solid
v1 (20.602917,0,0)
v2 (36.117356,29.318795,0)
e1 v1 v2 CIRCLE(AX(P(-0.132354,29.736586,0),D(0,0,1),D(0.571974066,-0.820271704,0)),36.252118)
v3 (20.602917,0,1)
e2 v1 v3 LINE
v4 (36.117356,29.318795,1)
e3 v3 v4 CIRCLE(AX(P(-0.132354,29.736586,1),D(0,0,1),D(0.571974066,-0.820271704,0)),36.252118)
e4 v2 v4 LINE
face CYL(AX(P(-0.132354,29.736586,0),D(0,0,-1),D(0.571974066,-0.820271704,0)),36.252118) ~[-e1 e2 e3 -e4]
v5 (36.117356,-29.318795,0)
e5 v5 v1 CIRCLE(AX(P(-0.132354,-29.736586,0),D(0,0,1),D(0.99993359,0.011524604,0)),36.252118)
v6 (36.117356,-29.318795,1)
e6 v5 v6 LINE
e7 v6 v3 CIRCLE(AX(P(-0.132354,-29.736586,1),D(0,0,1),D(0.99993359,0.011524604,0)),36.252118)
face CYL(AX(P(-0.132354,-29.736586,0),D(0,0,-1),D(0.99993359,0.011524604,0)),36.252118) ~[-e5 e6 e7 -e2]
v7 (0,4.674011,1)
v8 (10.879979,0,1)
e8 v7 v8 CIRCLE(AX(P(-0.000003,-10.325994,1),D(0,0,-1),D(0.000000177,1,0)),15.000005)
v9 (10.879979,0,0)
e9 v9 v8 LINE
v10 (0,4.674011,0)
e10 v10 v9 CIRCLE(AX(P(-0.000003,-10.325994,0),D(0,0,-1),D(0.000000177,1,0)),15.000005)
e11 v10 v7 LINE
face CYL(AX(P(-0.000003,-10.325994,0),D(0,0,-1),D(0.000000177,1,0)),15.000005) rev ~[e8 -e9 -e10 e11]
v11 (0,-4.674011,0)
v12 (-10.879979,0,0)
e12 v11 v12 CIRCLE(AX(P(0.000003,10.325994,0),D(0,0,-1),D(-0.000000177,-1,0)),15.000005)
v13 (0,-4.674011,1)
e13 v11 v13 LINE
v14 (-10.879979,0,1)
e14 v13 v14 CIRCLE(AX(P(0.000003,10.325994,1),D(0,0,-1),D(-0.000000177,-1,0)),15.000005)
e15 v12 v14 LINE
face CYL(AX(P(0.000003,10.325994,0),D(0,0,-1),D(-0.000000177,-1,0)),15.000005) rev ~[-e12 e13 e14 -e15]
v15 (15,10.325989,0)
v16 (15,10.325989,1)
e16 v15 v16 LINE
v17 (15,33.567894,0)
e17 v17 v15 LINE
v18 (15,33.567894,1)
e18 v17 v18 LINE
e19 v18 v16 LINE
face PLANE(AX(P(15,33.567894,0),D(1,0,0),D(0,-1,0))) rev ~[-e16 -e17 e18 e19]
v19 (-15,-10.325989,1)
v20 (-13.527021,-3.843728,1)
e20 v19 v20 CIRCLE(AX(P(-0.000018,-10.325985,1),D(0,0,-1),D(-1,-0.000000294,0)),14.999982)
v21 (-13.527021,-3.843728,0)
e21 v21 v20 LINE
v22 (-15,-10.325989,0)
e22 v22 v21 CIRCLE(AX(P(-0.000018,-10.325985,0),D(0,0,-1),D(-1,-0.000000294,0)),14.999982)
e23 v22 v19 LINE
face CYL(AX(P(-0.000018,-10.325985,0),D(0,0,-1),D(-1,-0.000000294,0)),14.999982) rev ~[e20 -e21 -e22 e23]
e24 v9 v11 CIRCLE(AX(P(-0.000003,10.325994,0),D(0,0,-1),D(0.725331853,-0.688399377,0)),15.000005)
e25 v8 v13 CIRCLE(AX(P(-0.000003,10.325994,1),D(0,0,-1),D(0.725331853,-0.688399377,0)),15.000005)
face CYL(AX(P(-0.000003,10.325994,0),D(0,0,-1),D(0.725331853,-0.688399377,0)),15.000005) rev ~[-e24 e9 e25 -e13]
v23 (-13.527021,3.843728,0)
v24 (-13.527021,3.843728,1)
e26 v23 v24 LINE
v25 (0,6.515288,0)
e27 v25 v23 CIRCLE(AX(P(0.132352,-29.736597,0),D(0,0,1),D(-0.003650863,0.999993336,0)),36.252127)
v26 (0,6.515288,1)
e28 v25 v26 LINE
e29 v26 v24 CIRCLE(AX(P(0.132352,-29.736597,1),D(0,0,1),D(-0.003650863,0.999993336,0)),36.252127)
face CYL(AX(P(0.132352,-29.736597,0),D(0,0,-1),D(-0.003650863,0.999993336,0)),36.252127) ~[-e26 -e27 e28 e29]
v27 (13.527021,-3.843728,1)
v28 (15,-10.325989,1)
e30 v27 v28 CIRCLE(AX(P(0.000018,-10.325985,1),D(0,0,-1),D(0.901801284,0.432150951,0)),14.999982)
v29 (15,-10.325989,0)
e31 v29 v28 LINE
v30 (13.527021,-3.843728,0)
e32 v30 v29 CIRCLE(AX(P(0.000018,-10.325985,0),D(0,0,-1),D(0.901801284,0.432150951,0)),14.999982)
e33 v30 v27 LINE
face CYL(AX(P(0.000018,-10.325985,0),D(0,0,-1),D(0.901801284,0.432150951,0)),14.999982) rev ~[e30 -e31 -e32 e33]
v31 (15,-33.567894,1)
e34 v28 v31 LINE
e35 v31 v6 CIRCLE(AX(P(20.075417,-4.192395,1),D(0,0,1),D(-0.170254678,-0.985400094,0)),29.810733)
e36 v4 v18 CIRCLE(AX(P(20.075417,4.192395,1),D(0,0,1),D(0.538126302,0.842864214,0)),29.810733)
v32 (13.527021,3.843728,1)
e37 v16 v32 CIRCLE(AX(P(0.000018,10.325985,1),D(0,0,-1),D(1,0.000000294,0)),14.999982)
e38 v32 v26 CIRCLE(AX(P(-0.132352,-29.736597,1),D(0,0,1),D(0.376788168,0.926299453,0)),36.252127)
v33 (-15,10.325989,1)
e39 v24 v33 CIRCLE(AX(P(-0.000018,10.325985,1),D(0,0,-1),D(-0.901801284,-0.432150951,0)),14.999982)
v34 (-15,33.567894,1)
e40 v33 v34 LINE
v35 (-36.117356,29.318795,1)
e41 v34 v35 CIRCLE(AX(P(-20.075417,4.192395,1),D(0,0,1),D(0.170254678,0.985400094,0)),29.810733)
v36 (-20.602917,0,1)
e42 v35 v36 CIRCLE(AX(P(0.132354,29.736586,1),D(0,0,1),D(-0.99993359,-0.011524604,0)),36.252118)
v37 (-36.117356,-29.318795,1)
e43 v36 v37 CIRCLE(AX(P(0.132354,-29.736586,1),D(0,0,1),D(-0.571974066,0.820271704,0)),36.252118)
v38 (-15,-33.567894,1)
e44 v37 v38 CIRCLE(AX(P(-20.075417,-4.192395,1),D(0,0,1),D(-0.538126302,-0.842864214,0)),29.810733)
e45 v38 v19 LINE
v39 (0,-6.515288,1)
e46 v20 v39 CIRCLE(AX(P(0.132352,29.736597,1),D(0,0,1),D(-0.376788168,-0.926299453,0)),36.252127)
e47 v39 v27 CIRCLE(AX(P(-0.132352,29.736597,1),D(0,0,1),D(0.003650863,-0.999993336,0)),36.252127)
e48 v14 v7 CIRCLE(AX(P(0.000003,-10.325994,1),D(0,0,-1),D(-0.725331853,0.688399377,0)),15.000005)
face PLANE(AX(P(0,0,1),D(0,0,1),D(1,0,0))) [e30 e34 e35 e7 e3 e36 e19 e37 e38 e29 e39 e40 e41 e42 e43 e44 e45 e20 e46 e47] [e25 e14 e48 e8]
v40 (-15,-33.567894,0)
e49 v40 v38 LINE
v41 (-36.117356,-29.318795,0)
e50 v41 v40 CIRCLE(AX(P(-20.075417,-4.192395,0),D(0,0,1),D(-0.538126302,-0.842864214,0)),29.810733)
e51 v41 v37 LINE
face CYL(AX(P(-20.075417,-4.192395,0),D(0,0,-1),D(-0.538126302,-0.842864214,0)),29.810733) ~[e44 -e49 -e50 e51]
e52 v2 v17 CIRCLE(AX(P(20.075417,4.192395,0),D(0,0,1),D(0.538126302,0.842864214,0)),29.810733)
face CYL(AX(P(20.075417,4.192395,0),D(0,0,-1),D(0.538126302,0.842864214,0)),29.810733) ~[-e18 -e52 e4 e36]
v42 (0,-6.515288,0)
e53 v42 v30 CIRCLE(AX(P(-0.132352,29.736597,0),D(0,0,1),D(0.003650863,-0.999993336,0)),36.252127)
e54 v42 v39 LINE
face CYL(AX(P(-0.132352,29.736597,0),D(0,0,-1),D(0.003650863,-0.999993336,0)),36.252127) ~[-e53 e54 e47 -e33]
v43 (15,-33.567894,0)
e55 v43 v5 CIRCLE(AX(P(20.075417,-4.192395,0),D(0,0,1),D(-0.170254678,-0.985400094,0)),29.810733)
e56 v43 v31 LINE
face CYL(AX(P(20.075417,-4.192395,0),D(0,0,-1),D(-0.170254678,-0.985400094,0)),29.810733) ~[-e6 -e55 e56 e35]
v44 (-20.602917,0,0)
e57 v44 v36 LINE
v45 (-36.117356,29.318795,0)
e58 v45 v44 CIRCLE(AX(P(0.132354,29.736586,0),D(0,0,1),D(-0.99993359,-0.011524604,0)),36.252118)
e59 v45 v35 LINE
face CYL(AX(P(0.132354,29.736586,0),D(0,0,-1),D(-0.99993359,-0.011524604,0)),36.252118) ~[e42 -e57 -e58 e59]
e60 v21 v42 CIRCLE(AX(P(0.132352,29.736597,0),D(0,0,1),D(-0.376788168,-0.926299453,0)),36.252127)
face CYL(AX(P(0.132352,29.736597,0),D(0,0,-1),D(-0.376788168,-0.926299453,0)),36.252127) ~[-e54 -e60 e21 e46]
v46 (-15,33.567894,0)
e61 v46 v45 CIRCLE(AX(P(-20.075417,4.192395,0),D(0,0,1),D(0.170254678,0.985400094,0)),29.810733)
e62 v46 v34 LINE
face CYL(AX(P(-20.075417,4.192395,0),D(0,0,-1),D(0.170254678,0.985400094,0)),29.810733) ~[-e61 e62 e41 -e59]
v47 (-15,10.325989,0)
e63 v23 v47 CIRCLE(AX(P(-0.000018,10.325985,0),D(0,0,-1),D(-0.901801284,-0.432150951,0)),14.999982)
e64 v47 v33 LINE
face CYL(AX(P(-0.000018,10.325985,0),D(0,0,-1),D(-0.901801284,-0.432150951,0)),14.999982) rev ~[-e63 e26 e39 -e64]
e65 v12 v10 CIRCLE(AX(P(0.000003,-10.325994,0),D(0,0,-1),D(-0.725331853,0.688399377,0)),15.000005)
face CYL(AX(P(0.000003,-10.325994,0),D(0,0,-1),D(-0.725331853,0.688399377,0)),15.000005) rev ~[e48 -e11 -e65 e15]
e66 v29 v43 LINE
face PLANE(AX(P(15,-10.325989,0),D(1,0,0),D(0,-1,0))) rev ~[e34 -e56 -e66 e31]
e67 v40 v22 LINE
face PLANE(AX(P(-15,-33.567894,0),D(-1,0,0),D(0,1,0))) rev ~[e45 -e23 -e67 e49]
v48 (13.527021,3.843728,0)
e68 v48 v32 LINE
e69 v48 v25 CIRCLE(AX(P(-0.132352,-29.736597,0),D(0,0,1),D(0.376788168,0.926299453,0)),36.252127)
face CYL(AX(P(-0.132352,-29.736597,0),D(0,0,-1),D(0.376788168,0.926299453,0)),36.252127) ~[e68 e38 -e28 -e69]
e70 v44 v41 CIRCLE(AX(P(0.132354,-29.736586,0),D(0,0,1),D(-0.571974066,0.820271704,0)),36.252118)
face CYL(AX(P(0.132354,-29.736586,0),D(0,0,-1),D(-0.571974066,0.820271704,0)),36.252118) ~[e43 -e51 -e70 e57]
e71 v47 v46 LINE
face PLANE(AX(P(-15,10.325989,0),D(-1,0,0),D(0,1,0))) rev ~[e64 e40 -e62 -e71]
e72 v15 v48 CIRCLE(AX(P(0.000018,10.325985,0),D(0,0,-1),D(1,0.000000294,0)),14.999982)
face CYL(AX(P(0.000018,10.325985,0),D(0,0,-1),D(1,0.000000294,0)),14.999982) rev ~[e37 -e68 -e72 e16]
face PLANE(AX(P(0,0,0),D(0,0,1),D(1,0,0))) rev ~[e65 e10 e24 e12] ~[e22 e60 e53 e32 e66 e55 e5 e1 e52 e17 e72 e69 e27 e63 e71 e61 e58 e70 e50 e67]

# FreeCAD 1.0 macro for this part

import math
import FreeCAD as App
import Part
import Sketcher

doc = App.newDocument("Part")
body = doc.addObject("PartDesign::Body", "Body")

# Sketch on XY plane
sketch1 = body.newObject("Sketcher::SketchObject", "Sketch")
sketch1.AttachmentSupport = (doc.getObject("XY_Plane"), [""])
sketch1.MapMode = "FlatFace"
sketch1.addGeometry([
    Part.LineSegment(App.Vector(-15, 10.325989, 0), App.Vector(-15, 33.567894, 0)),  # 0
    Part.ArcOfCircle(Part.Circle(App.Vector(-20.075417, 4.192395, 0), App.Vector(0, 0, 1), 29.810733), math.radians(80.197373), math.radians(122.556179)),  # 1
    Part.ArcOfCircle(Part.Circle(App.Vector(0.132354, 29.736586, 0), App.Vector(0, 0, 1), 36.252118), math.radians(-179.339674), math.radians(-124.887998)),  # 2
    Part.ArcOfCircle(Part.Circle(App.Vector(0.132354, -29.736586, 0), App.Vector(0, 0, 1), 36.252118), math.radians(124.887998), math.radians(179.339674)),  # 3
    Part.ArcOfCircle(Part.Circle(App.Vector(-20.075417, -4.192395, 0), App.Vector(0, 0, 1), 29.810733), math.radians(-122.556179), math.radians(-80.197373)),  # 4
    Part.LineSegment(App.Vector(-15, -33.567894, 0), App.Vector(-15, -10.325989, 0)),  # 5
    Part.ArcOfCircle(Part.Circle(App.Vector(-0.000018, -10.325985, 0), App.Vector(0, 0, 1), 14.999982), math.radians(154.395857), math.radians(180.000017)),  # 6
    Part.ArcOfCircle(Part.Circle(App.Vector(0.132352, 29.736597, 0), App.Vector(0, 0, 1), 36.252127), math.radians(-112.134876), math.radians(-90.20918)),  # 7
    Part.ArcOfCircle(Part.Circle(App.Vector(-0.132352, 29.736597, 0), App.Vector(0, 0, 1), 36.252127), math.radians(-89.79082), math.radians(-67.865124)),  # 8
    Part.ArcOfCircle(Part.Circle(App.Vector(0.000018, -10.325985, 0), App.Vector(0, 0, 1), 14.999982), math.radians(-0.000017), math.radians(25.604143)),  # 9
    Part.LineSegment(App.Vector(15, -10.325989, 0), App.Vector(15, -33.567894, 0)),  # 10
    Part.ArcOfCircle(Part.Circle(App.Vector(20.075417, -4.192395, 0), App.Vector(0, 0, 1), 29.810733), math.radians(-99.802627), math.radians(-57.443821)),  # 11
    Part.ArcOfCircle(Part.Circle(App.Vector(-0.132354, -29.736586, 0), App.Vector(0, 0, 1), 36.252118), math.radians(0.660326), math.radians(55.112002)),  # 12
    Part.ArcOfCircle(Part.Circle(App.Vector(-0.132354, 29.736586, 0), App.Vector(0, 0, 1), 36.252118), math.radians(-55.112002), math.radians(-0.660326)),  # 13
    Part.ArcOfCircle(Part.Circle(App.Vector(20.075417, 4.192395, 0), App.Vector(0, 0, 1), 29.810733), math.radians(57.443821), math.radians(99.802627)),  # 14
    Part.LineSegment(App.Vector(15, 33.567894, 0), App.Vector(15, 10.325989, 0)),  # 15
    Part.ArcOfCircle(Part.Circle(App.Vector(0.000018, 10.325985, 0), App.Vector(0, 0, 1), 14.999982), math.radians(-25.604143), math.radians(0.000017)),  # 16
    Part.ArcOfCircle(Part.Circle(App.Vector(-0.132352, -29.736597, 0), App.Vector(0, 0, 1), 36.252127), math.radians(67.865124), math.radians(89.79082)),  # 17
    Part.ArcOfCircle(Part.Circle(App.Vector(0.132352, -29.736597, 0), App.Vector(0, 0, 1), 36.252127), math.radians(90.20918), math.radians(112.134876)),  # 18
    Part.ArcOfCircle(Part.Circle(App.Vector(-0.000018, 10.325985, 0), App.Vector(0, 0, 1), 14.999982), math.radians(179.999983), math.radians(205.604143)),  # 19
    Part.ArcOfCircle(Part.Circle(App.Vector(0.000003, -10.325994, 0), App.Vector(0, 0, 1), 15.000005), math.radians(90.00001), math.radians(136.496461)),  # 20
    Part.ArcOfCircle(Part.Circle(App.Vector(-0.000003, -10.325994, 0), App.Vector(0, 0, 1), 15.000005), math.radians(43.503539), math.radians(89.99999)),  # 21
    Part.ArcOfCircle(Part.Circle(App.Vector(-0.000003, 10.325994, 0), App.Vector(0, 0, 1), 15.000005), math.radians(-89.99999), math.radians(-43.503539)),  # 22
    Part.ArcOfCircle(Part.Circle(App.Vector(0.000003, 10.325994, 0), App.Vector(0, 0, 1), 15.000005), math.radians(-136.496461), math.radians(-90.00001)),  # 23
], False)
sketch1.addConstraint([
    Sketcher.Constraint("Coincident", 0, 2, 1, 1),
    Sketcher.Constraint("Coincident", 1, 2, 2, 1),
    Sketcher.Constraint("Coincident", 2, 2, 3, 1),
    Sketcher.Constraint("Coincident", 3, 2, 4, 1),
    Sketcher.Constraint("Coincident", 4, 2, 5, 1),
    Sketcher.Constraint("Tangent", 5, 2, 6, 2),
    Sketcher.Constraint("Coincident", 6, 1, 7, 1),
    Sketcher.Constraint("Coincident", 7, 2, 8, 1),
    Sketcher.Constraint("Coincident", 8, 2, 9, 2),
    Sketcher.Constraint("Tangent", 9, 1, 10, 1),
    Sketcher.Constraint("Coincident", 10, 2, 11, 1),
    Sketcher.Constraint("Coincident", 11, 2, 12, 1),
    Sketcher.Constraint("Coincident", 12, 2, 13, 1),
    Sketcher.Constraint("Coincident", 13, 2, 14, 1),
    Sketcher.Constraint("Coincident", 14, 2, 15, 1),
    Sketcher.Constraint("Tangent", 15, 2, 16, 2),
    Sketcher.Constraint("Coincident", 16, 1, 17, 1),
    Sketcher.Constraint("Coincident", 17, 2, 18, 1),
    Sketcher.Constraint("Coincident", 18, 2, 19, 2),
    Sketcher.Constraint("Tangent", 19, 1, 0, 1),
    Sketcher.Constraint("Tangent", 20, 1, 21, 2),
    Sketcher.Constraint("Coincident", 21, 1, 22, 2),
    Sketcher.Constraint("Tangent", 22, 1, 23, 2),
    Sketcher.Constraint("Coincident", 23, 1, 20, 2),
    Sketcher.Constraint("Vertical", 0),
    Sketcher.Constraint("Vertical", 5),
    Sketcher.Constraint("Vertical", 10),
    Sketcher.Constraint("Vertical", 15),
    Sketcher.Constraint("Equal", 2, 3),
    Sketcher.Constraint("Equal", 1, 4),
    Sketcher.Constraint("Equal", 7, 8),
    Sketcher.Constraint("Equal", 6, 9),
    Sketcher.Constraint("Equal", 4, 11),
    Sketcher.Constraint("Equal", 3, 12),
    Sketcher.Constraint("Equal", 12, 13),
    Sketcher.Constraint("Equal", 11, 14),
    Sketcher.Constraint("Equal", 9, 16),
    Sketcher.Constraint("Equal", 8, 17),
    Sketcher.Constraint("Equal", 17, 18),
    Sketcher.Constraint("Equal", 16, 19),
    Sketcher.Constraint("Equal", 20, 21),
    Sketcher.Constraint("Equal", 21, 22),
    Sketcher.Constraint("Equal", 22, 23),
    Sketcher.Constraint("Symmetric", 1, 3, 11, 3, -1, 1),
    Sketcher.Constraint("Symmetric", 2, 3, 12, 3, -1, 1),
    Sketcher.Constraint("Symmetric", 3, 3, 13, 3, -1, 1),
    Sketcher.Constraint("Symmetric", 4, 3, 14, 3, -1, 1),
    Sketcher.Constraint("Symmetric", 6, 3, 16, 3, -1, 1),
    Sketcher.Constraint("Symmetric", 7, 3, 17, 3, -1, 1),
    Sketcher.Constraint("Symmetric", 8, 3, 18, 3, -1, 1),
    Sketcher.Constraint("Symmetric", 9, 3, 19, 3, -1, 1),
    Sketcher.Constraint("Symmetric", 20, 3, 22, 3, -1, 1),
    Sketcher.Constraint("Symmetric", 7, 3, 8, 3, -2),
    Sketcher.Constraint("Symmetric", 6, 3, 9, 3, -2),
    Sketcher.Constraint("Symmetric", 4, 3, 11, 3, -2),
    Sketcher.Constraint("Symmetric", 3, 3, 12, 3, -2),
    Sketcher.Constraint("PointOnObject", 20, 1, -2),
    Sketcher.Constraint("PointOnObject", 21, 1, -1),
    Sketcher.Constraint("PointOnObject", 22, 1, -2),
    Sketcher.Constraint("DistanceX", 0, 2, -1, 1, 15.0),
    Sketcher.Constraint("Radius", 1, 29.810733),
    Sketcher.Constraint("Radius", 2, 36.252118),
    Sketcher.Constraint("Radius", 6, 14.999982),
    Sketcher.Constraint("Radius", 7, 36.252127),
    Sketcher.Constraint("Radius", 20, 15.000005),
    Sketcher.Constraint("DistanceX", 1, 2, 13, 3, 35.985002),
    Sketcher.Constraint("DistanceY", 3, 3, 6, 3, 19.410602),
    Sketcher.Constraint("DistanceX", 4, 3, 6, 3, 20.075399),
    Sketcher.Constraint("DistanceX", 2, 2, 1, 3, 0.5275),
    Sketcher.Constraint("DistanceY", 0, 1, 0, 2, 23.241905),
    Sketcher.Constraint("DistanceX", -1, 1, 7, 3, 0.132352),
    Sketcher.Constraint("DistanceX", 6, 1, -1, 1, 13.527021),
    Sketcher.Constraint("DistanceY", -1, 1, 20, 1, 4.674011),
])
pad1 = body.newObject("PartDesign::Pad", "Pad")
pad1.Profile = sketch1
pad1.Length = 1

doc.recompute()
